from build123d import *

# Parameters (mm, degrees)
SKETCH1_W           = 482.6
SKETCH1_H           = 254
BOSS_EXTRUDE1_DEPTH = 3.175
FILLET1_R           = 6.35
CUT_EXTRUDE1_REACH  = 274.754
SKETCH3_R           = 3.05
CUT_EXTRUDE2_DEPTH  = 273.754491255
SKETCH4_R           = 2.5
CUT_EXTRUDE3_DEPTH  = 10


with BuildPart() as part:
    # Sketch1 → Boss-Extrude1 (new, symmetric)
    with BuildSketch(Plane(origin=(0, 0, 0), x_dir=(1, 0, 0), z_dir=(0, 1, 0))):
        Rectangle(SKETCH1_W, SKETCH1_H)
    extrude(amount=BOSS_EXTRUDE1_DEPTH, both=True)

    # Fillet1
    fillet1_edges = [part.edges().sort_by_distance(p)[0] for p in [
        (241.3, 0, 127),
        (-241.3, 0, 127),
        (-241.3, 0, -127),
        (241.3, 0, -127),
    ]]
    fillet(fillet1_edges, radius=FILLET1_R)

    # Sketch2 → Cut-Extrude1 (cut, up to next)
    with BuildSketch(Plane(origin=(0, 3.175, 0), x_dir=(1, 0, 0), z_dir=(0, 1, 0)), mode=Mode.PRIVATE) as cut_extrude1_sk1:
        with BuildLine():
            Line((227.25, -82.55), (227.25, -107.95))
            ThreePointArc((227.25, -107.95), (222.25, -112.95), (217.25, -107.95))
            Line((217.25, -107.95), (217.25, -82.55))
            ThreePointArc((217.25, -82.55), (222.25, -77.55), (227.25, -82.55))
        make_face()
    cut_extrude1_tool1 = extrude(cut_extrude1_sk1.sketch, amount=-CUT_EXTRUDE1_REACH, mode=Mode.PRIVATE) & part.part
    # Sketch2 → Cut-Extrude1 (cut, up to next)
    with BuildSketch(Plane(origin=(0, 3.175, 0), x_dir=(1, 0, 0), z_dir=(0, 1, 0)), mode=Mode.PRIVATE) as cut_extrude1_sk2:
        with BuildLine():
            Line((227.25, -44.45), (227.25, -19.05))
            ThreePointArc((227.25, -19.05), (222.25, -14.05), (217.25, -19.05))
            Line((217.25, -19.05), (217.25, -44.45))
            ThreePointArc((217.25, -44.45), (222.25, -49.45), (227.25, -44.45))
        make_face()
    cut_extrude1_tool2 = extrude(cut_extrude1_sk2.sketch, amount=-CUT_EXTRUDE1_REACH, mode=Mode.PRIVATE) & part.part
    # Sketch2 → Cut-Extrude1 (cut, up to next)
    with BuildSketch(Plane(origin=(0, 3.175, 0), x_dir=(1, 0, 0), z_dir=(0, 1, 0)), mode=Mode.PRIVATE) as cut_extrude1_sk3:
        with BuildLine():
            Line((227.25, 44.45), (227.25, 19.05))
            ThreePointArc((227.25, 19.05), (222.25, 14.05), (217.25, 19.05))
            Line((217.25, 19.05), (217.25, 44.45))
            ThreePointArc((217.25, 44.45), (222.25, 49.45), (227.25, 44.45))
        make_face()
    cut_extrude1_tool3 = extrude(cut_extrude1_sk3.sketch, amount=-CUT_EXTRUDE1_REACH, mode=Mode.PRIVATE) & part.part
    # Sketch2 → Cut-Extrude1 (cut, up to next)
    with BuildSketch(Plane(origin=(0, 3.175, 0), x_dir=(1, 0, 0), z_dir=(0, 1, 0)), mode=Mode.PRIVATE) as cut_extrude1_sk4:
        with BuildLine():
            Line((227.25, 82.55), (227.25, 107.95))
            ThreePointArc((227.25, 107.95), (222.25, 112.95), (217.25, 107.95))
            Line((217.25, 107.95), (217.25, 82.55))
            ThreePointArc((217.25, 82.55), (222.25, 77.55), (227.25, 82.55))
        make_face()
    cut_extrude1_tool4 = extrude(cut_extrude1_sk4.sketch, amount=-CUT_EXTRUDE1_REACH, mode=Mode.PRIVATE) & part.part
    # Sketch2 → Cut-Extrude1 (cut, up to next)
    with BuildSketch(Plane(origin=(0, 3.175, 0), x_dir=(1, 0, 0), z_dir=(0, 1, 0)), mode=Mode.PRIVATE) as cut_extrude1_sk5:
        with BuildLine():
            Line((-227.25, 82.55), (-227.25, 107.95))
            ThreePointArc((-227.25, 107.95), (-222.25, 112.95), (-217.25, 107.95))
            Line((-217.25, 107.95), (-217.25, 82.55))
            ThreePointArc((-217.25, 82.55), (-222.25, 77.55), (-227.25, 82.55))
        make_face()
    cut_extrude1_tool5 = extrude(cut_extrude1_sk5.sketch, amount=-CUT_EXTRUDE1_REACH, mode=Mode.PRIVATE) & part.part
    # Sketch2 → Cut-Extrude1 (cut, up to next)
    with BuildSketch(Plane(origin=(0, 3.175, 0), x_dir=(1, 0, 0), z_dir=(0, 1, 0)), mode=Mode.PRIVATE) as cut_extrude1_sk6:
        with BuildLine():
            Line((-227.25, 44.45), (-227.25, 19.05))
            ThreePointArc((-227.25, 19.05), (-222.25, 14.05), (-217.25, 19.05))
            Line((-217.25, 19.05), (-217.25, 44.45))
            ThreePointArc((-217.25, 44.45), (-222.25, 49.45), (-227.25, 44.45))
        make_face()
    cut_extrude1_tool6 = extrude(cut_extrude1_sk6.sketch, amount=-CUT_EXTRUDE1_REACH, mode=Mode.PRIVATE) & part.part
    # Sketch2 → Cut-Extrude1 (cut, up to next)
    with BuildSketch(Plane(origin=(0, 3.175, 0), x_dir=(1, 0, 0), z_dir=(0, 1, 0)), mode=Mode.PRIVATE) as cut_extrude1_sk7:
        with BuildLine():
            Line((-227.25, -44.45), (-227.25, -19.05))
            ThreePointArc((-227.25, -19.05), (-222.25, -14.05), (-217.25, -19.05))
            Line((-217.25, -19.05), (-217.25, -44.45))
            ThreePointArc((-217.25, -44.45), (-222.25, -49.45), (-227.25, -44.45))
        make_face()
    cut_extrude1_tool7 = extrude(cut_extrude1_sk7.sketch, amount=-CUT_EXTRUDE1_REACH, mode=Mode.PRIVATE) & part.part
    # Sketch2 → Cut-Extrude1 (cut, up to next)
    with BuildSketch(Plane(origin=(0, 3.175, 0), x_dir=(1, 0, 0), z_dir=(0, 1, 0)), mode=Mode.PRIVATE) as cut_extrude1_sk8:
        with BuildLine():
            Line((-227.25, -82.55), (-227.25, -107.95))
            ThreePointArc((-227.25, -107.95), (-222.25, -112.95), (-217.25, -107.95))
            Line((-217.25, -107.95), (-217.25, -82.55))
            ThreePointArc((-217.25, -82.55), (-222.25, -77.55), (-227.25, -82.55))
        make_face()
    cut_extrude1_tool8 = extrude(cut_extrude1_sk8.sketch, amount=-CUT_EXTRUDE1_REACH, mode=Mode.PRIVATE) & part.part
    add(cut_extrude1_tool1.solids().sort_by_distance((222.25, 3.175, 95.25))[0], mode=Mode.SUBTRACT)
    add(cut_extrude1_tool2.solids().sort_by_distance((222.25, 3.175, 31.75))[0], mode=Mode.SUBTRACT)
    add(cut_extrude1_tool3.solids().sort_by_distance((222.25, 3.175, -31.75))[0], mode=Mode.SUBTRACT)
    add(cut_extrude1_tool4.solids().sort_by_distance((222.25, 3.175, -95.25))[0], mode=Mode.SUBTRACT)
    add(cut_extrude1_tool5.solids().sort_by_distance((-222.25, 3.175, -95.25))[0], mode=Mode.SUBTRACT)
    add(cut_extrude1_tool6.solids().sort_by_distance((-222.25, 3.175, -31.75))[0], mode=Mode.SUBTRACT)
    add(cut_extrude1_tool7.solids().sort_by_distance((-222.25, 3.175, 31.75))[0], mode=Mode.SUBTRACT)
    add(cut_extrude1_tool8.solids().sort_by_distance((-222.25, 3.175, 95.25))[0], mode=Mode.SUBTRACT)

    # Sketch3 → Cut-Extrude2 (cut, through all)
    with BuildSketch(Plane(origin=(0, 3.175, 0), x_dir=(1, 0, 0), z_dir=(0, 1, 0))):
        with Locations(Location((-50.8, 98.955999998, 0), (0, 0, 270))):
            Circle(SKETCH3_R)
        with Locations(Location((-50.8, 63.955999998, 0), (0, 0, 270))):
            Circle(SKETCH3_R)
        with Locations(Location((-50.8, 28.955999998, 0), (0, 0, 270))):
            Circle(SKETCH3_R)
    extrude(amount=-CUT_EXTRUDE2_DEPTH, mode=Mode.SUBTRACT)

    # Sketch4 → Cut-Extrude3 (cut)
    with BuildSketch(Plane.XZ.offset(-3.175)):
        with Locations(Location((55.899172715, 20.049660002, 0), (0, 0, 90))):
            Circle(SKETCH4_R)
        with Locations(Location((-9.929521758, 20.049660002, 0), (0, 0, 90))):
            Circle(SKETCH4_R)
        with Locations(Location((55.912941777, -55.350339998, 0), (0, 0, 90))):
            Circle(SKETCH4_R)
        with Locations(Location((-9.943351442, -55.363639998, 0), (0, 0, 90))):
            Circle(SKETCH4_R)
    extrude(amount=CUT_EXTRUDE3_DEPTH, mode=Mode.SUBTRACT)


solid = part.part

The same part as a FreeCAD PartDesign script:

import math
import FreeCAD as App
import Part
import Sketcher
from FreeCAD import Vector
Q = App.Units.Quantity


def edges_at(feature, points):
    """Names of the edges that pass closest to the given points."""
    edges = feature.Shape.Edges
    near = lambda p: min(range(len(edges)), key=lambda i: edges[i].distToShape(Part.Vertex(*p))[0])
    return sorted({f"Edge{near(p) + 1}" for p in points})

doc = App.newDocument("Part")
params = doc.addObject("Spreadsheet::Sheet", "Params")
for row, (alias, value) in enumerate([
    ("sketch1_width", "19 in"),
    ("sketch1_height", "10 in"),
    ("pad1_length", "0.25 in"),
    ("fillet_radius", "0.25 in"),
    ("sketch2_height", "1 in"),
    ("sketch3_height", "1 in"),
    ("sketch4_height", "1 in"),
    ("sketch5_height", "1 in"),
    ("sketch6_height", "1 in"),
    ("sketch7_height", "1 in"),
    ("sketch8_height", "1 in"),
    ("sketch9_height", "1 in"),
    ("pocket10_length", "10 mm"),
], start=1):
    params.set(f"A{row}", alias)
    params.set(f"B{row}", "=" + value)
    params.setAlias(f"B{row}", alias)

body = doc.addObject("PartDesign::Body", "Body")

sketch1 = body.newObject("Sketcher::SketchObject", "Sketch")
sketch1.AttachmentSupport = (doc.getObject("XZ_Plane"), [""])
sketch1.MapMode = "FlatFace"
sketch1.addGeometry(Part.LineSegment(Vector(-241, -127, 0), Vector(-241, 127, 0)), False)
sketch1.addGeometry(Part.LineSegment(Vector(-241, 127, 0), Vector(241, 127, 0)), False)
sketch1.addGeometry(Part.LineSegment(Vector(241, 127, 0), Vector(241, -127, 0)), False)
sketch1.addGeometry(Part.LineSegment(Vector(241, -127, 0), Vector(-241, -127, 0)), False)
sketch1.addConstraint(Sketcher.Constraint("Coincident", 0, 2, 1, 1))
sketch1.addConstraint(Sketcher.Constraint("Coincident", 1, 2, 2, 1))
sketch1.addConstraint(Sketcher.Constraint("Coincident", 2, 2, 3, 1))
sketch1.addConstraint(Sketcher.Constraint("Coincident", 3, 2, 0, 1))
sketch1.addConstraint(Sketcher.Constraint("Vertical", 0))
sketch1.addConstraint(Sketcher.Constraint("Horizontal", 1))
sketch1.addConstraint(Sketcher.Constraint("Vertical", 2))
sketch1.addConstraint(Sketcher.Constraint("Horizontal", 3))
sketch1.addConstraint(Sketcher.Constraint("Symmetric", 0, 2, 2, 2, -1, 1))
sketch1.addConstraint(Sketcher.Constraint("DistanceX", 1, 1, 1, 2, Q("19 in")))
sketch1.addConstraint(Sketcher.Constraint("DistanceY", 0, 1, 0, 2, Q("10 in")))
sketch1.setExpression("Constraints[9]", "Params.sketch1_width")
sketch1.setExpression("Constraints[10]", "Params.sketch1_height")
pad1 = body.newObject("PartDesign::Pad", "Pad")
pad1.Profile = sketch1
pad1.setExpression("Length", "Params.pad1_length")
pad1.Midplane = True
doc.recompute()

fillet = body.newObject("PartDesign::Fillet", "Fillet")
fillet.Base = (pad1, edges_at(pad1, [
    (241.3, 0, 127),
    (-241.3, 0, 127),
    (-241.3, 0, -127),
    (241.3, 0, -127),
]))
fillet.setExpression("Radius", "Params.fillet_radius")

sketch2 = body.newObject("Sketcher::SketchObject", "Sketch001")
sketch2.AttachmentSupport = (doc.getObject("XZ_Plane"), [""])
sketch2.MapMode = "FlatFace"
sketch2.AttachmentOffset = App.Placement(Vector(0, 0, -0.125 * 25.4), App.Rotation())
sketch2.addGeometry(Part.LineSegment(Vector(227, 108, 0), Vector(227, 83, 0)), False)
sketch2.addGeometry(Part.ArcOfCircle(Part.Circle(Vector(222, 83, 0), Vector(0, 0, 1), 5), math.radians(180), math.radians(360)), False)
sketch2.addGeometry(Part.LineSegment(Vector(217, 83, 0), Vector(217, 108, 0)), False)
sketch2.addGeometry(Part.ArcOfCircle(Part.Circle(Vector(222, 108, 0), Vector(0, 0, 1), 5), math.radians(0), math.radians(180)), False)
sketch2.addConstraint(Sketcher.Constraint("Tangent", 0, 2, 1, 2))
sketch2.addConstraint(Sketcher.Constraint("Tangent", 1, 1, 2, 1))
sketch2.addConstraint(Sketcher.Constraint("Tangent", 2, 2, 3, 2))
sketch2.addConstraint(Sketcher.Constraint("Tangent", 3, 1, 0, 1))
sketch2.addConstraint(Sketcher.Constraint("Vertical", 0))
sketch2.addConstraint(Sketcher.Constraint("Vertical", 2))
sketch2.addConstraint(Sketcher.Constraint("DistanceY", 0, 2, 0, 1, Q("1 in")))
sketch2.addConstraint(Sketcher.Constraint("DistanceX", -1, 1, 1, 3, Q("8.75 in")))
sketch2.addConstraint(Sketcher.Constraint("DistanceY", -1, 1, 1, 3, Q("3.25 in")))
sketch2.addConstraint(Sketcher.Constraint("Radius", 1, 5.0))
sketch2.setExpression("Constraints[6]", "Params.sketch2_height")
pocket1 = body.newObject("PartDesign::Pocket", "Pocket")
pocket1.Profile = sketch2
pocket1.Type = "UpToFirst"
pocket1.Reversed = True

sketch3 = body.newObject("Sketcher::SketchObject", "Sketch002")
sketch3.AttachmentSupport = (doc.getObject("XZ_Plane"), [""])
sketch3.MapMode = "FlatFace"
sketch3.AttachmentOffset = App.Placement(Vector(0, 0, -0.125 * 25.4), App.Rotation())
sketch3.addGeometry(Part.LineSegment(Vector(227, 44, 0), Vector(227, 19, 0)), False)
sketch3.addGeometry(Part.ArcOfCircle(Part.Circle(Vector(222, 19, 0), Vector(0, 0, 1), 5), math.radians(180), math.radians(360)), False)
sketch3.addGeometry(Part.LineSegment(Vector(217, 19, 0), Vector(217, 44, 0)), False)
sketch3.addGeometry(Part.ArcOfCircle(Part.Circle(Vector(222, 44, 0), Vector(0, 0, 1), 5), math.radians(0), math.radians(180)), False)
sketch3.addConstraint(Sketcher.Constraint("Tangent", 0, 2, 1, 2))
sketch3.addConstraint(Sketcher.Constraint("Tangent", 1, 1, 2, 1))
sketch3.addConstraint(Sketcher.Constraint("Tangent", 2, 2, 3, 2))
sketch3.addConstraint(Sketcher.Constraint("Tangent", 3, 1, 0, 1))
sketch3.addConstraint(Sketcher.Constraint("Vertical", 0))
sketch3.addConstraint(Sketcher.Constraint("Vertical", 2))
sketch3.addConstraint(Sketcher.Constraint("DistanceY", 0, 2, 0, 1, Q("1 in")))
sketch3.addConstraint(Sketcher.Constraint("DistanceX", -1, 1, 1, 3, Q("8.75 in")))
sketch3.addConstraint(Sketcher.Constraint("DistanceY", -1, 1, 1, 3, Q("0.75 in")))
sketch3.addConstraint(Sketcher.Constraint("Radius", 1, 5.0))
sketch3.setExpression("Constraints[6]", "Params.sketch3_height")
pocket2 = body.newObject("PartDesign::Pocket", "Pocket001")
pocket2.Profile = sketch3
pocket2.Type = "UpToFirst"
pocket2.Reversed = True

sketch4 = body.newObject("Sketcher::SketchObject", "Sketch003")
sketch4.AttachmentSupport = (doc.getObject("XZ_Plane"), [""])
sketch4.MapMode = "FlatFace"
sketch4.AttachmentOffset = App.Placement(Vector(0, 0, -0.125 * 25.4), App.Rotation())
sketch4.addGeometry(Part.LineSegment(Vector(227, -19, 0), Vector(227, -44, 0)), False)
sketch4.addGeometry(Part.ArcOfCircle(Part.Circle(Vector(222, -44, 0), Vector(0, 0, 1), 5), math.radians(180), math.radians(360)), False)
sketch4.addGeometry(Part.LineSegment(Vector(217, -44, 0), Vector(217, -19, 0)), False)
sketch4.addGeometry(Part.ArcOfCircle(Part.Circle(Vector(222, -19, 0), Vector(0, 0, 1), 5), math.radians(0), math.radians(180)), False)
sketch4.addConstraint(Sketcher.Constraint("Tangent", 0, 2, 1, 2))
sketch4.addConstraint(Sketcher.Constraint("Tangent", 1, 1, 2, 1))
sketch4.addConstraint(Sketcher.Constraint("Tangent", 2, 2, 3, 2))
sketch4.addConstraint(Sketcher.Constraint("Tangent", 3, 1, 0, 1))
sketch4.addConstraint(Sketcher.Constraint("Vertical", 0))
sketch4.addConstraint(Sketcher.Constraint("Vertical", 2))
sketch4.addConstraint(Sketcher.Constraint("DistanceY", 0, 2, 0, 1, Q("1 in")))
sketch4.addConstraint(Sketcher.Constraint("DistanceX", -1, 1, 1, 3, Q("8.75 in")))
sketch4.addConstraint(Sketcher.Constraint("DistanceY", 1, 3, -1, 1, Q("1.75 in")))
sketch4.addConstraint(Sketcher.Constraint("Radius", 1, 5.0))
sketch4.setExpression("Constraints[6]", "Params.sketch4_height")
pocket3 = body.newObject("PartDesign::Pocket", "Pocket002")
pocket3.Profile = sketch4
pocket3.Type = "UpToFirst"
pocket3.Reversed = True

sketch5 = body.newObject("Sketcher::SketchObject", "Sketch004")
sketch5.AttachmentSupport = (doc.getObject("XZ_Plane"), [""])
sketch5.MapMode = "FlatFace"
sketch5.AttachmentOffset = App.Placement(Vector(0, 0, -0.125 * 25.4), App.Rotation())
sketch5.addGeometry(Part.LineSegment(Vector(227, -83, 0), Vector(227, -108, 0)), False)
sketch5.addGeometry(Part.ArcOfCircle(Part.Circle(Vector(222, -108, 0), Vector(0, 0, 1), 5), math.radians(180), math.radians(360)), False)
sketch5.addGeometry(Part.LineSegment(Vector(217, -108, 0), Vector(217, -83, 0)), False)
sketch5.addGeometry(Part.ArcOfCircle(Part.Circle(Vector(222, -83, 0), Vector(0, 0, 1), 5), math.radians(0), math.radians(180)), False)
sketch5.addConstraint(Sketcher.Constraint("Tangent", 0, 2, 1, 2))
sketch5.addConstraint(Sketcher.Constraint("Tangent", 1, 1, 2, 1))
sketch5.addConstraint(Sketcher.Constraint("Tangent", 2, 2, 3, 2))
sketch5.addConstraint(Sketcher.Constraint("Tangent", 3, 1, 0, 1))
sketch5.addConstraint(Sketcher.Constraint("Vertical", 0))
sketch5.addConstraint(Sketcher.Constraint("Vertical", 2))
sketch5.addConstraint(Sketcher.Constraint("DistanceY", 0, 2, 0, 1, Q("1 in")))
sketch5.addConstraint(Sketcher.Constraint("DistanceX", -1, 1, 1, 3, Q("8.75 in")))
sketch5.addConstraint(Sketcher.Constraint("DistanceY", 1, 3, -1, 1, Q("4.25 in")))
sketch5.addConstraint(Sketcher.Constraint("Radius", 1, 5.0))
sketch5.setExpression("Constraints[6]", "Params.sketch5_height")
pocket4 = body.newObject("PartDesign::Pocket", "Pocket003")
pocket4.Profile = sketch5
pocket4.Type = "UpToFirst"
pocket4.Reversed = True

sketch6 = body.newObject("Sketcher::SketchObject", "Sketch005")
sketch6.AttachmentSupport = (doc.getObject("XZ_Plane"), [""])
sketch6.MapMode = "FlatFace"
sketch6.AttachmentOffset = App.Placement(Vector(0, 0, -0.125 * 25.4), App.Rotation())
sketch6.addGeometry(Part.LineSegment(Vector(-227, -108, 0), Vector(-227, -83, 0)), False)
sketch6.addGeometry(Part.ArcOfCircle(Part.Circle(Vector(-222, -83, 0), Vector(0, 0, 1), 5), math.radians(0), math.radians(180)), False)
sketch6.addGeometry(Part.LineSegment(Vector(-217, -83, 0), Vector(-217, -108, 0)), False)
sketch6.addGeometry(Part.ArcOfCircle(Part.Circle(Vector(-222, -108, 0), Vector(0, 0, 1), 5), math.radians(180), math.radians(360)), False)
sketch6.addConstraint(Sketcher.Constraint("Tangent", 0, 2, 1, 2))
sketch6.addConstraint(Sketcher.Constraint("Tangent", 1, 1, 2, 1))
sketch6.addConstraint(Sketcher.Constraint("Tangent", 2, 2, 3, 2))
sketch6.addConstraint(Sketcher.Constraint("Tangent", 3, 1, 0, 1))
sketch6.addConstraint(Sketcher.Constraint("Vertical", 0))
sketch6.addConstraint(Sketcher.Constraint("Vertical", 2))
sketch6.addConstraint(Sketcher.Constraint("DistanceY", 0, 1, 0, 2, Q("1 in")))
sketch6.addConstraint(Sketcher.Constraint("DistanceX", 1, 3, -1, 1, Q("8.75 in")))
sketch6.addConstraint(Sketcher.Constraint("DistanceY", 1, 3, -1, 1, Q("3.25 in")))
sketch6.addConstraint(Sketcher.Constraint("Radius", 1, 5.0))
sketch6.setExpression("Constraints[6]", "Params.sketch6_height")
pocket5 = body.newObject("PartDesign::Pocket", "Pocket004")
pocket5.Profile = sketch6
pocket5.Type = "UpToFirst"
pocket5.Reversed = True

sketch7 = body.newObject("Sketcher::SketchObject", "Sketch006")
sketch7.AttachmentSupport = (doc.getObject("XZ_Plane"), [""])
sketch7.MapMode = "FlatFace"
sketch7.AttachmentOffset = App.Placement(Vector(0, 0, -0.125 * 25.4), App.Rotation())
sketch7.addGeometry(Part.LineSegment(Vector(-227, -44, 0), Vector(-227, -19, 0)), False)
sketch7.addGeometry(Part.ArcOfCircle(Part.Circle(Vector(-222, -19, 0), Vector(0, 0, 1), 5), math.radians(0), math.radians(180)), False)
sketch7.addGeometry(Part.LineSegment(Vector(-217, -19, 0), Vector(-217, -44, 0)), False)
sketch7.addGeometry(Part.ArcOfCircle(Part.Circle(Vector(-222, -44, 0), Vector(0, 0, 1), 5), math.radians(180), math.radians(360)), False)
sketch7.addConstraint(Sketcher.Constraint("Tangent", 0, 2, 1, 2))
sketch7.addConstraint(Sketcher.Constraint("Tangent", 1, 1, 2, 1))
sketch7.addConstraint(Sketcher.Constraint("Tangent", 2, 2, 3, 2))
sketch7.addConstraint(Sketcher.Constraint("Tangent", 3, 1, 0, 1))
sketch7.addConstraint(Sketcher.Constraint("Vertical", 0))
sketch7.addConstraint(Sketcher.Constraint("Vertical", 2))
sketch7.addConstraint(Sketcher.Constraint("DistanceY", 0, 1, 0, 2, Q("1 in")))
sketch7.addConstraint(Sketcher.Constraint("DistanceX", 1, 3, -1, 1, Q("8.75 in")))
sketch7.addConstraint(Sketcher.Constraint("DistanceY", 1, 3, -1, 1, Q("0.75 in")))
sketch7.addConstraint(Sketcher.Constraint("Radius", 1, 5.0))
sketch7.setExpression("Constraints[6]", "Params.sketch7_height")
pocket6 = body.newObject("PartDesign::Pocket", "Pocket005")
pocket6.Profile = sketch7
pocket6.Type = "UpToFirst"
pocket6.Reversed = True

sketch8 = body.newObject("Sketcher::SketchObject", "Sketch007")
sketch8.AttachmentSupport = (doc.getObject("XZ_Plane"), [""])
sketch8.MapMode = "FlatFace"
sketch8.AttachmentOffset = App.Placement(Vector(0, 0, -0.125 * 25.4), App.Rotation())
sketch8.addGeometry(Part.LineSegment(Vector(-227, 19, 0), Vector(-227, 44, 0)), False)
sketch8.addGeometry(Part.ArcOfCircle(Part.Circle(Vector(-222, 44, 0), Vector(0, 0, 1), 5), math.radians(0), math.radians(180)), False)
sketch8.addGeometry(Part.LineSegment(Vector(-217, 44, 0), Vector(-217, 19, 0)), False)
sketch8.addGeometry(Part.ArcOfCircle(Part.Circle(Vector(-222, 19, 0), Vector(0, 0, 1), 5), math.radians(180), math.radians(360)), False)
sketch8.addConstraint(Sketcher.Constraint("Tangent", 0, 2, 1, 2))
sketch8.addConstraint(Sketcher.Constraint("Tangent", 1, 1, 2, 1))
sketch8.addConstraint(Sketcher.Constraint("Tangent", 2, 2, 3, 2))
sketch8.addConstraint(Sketcher.Constraint("Tangent", 3, 1, 0, 1))
sketch8.addConstraint(Sketcher.Constraint("Vertical", 0))
sketch8.addConstraint(Sketcher.Constraint("Vertical", 2))
sketch8.addConstraint(Sketcher.Constraint("DistanceY", 0, 1, 0, 2, Q("1 in")))
sketch8.addConstraint(Sketcher.Constraint("DistanceX", 1, 3, -1, 1, Q("8.75 in")))
sketch8.addConstraint(Sketcher.Constraint("DistanceY", -1, 1, 1, 3, Q("1.75 in")))
sketch8.addConstraint(Sketcher.Constraint("Radius", 1, 5.0))
sketch8.setExpression("Constraints[6]", "Params.sketch8_height")
pocket7 = body.newObject("PartDesign::Pocket", "Pocket006")
pocket7.Profile = sketch8
pocket7.Type = "UpToFirst"
pocket7.Reversed = True

sketch9 = body.newObject("Sketcher::SketchObject", "Sketch008")
sketch9.AttachmentSupport = (doc.getObject("XZ_Plane"), [""])
sketch9.MapMode = "FlatFace"
sketch9.AttachmentOffset = App.Placement(Vector(0, 0, -0.125 * 25.4), App.Rotation())
sketch9.addGeometry(Part.LineSegment(Vector(-227, 83, 0), Vector(-227, 108, 0)), False)
sketch9.addGeometry(Part.ArcOfCircle(Part.Circle(Vector(-222, 108, 0), Vector(0, 0, 1), 5), math.radians(0), math.radians(180)), False)
sketch9.addGeometry(Part.LineSegment(Vector(-217, 108, 0), Vector(-217, 83, 0)), False)
sketch9.addGeometry(Part.ArcOfCircle(Part.Circle(Vector(-222, 83, 0), Vector(0, 0, 1), 5), math.radians(180), math.radians(360)), False)
sketch9.addConstraint(Sketcher.Constraint("Tangent", 0, 2, 1, 2))
sketch9.addConstraint(Sketcher.Constraint("Tangent", 1, 1, 2, 1))
sketch9.addConstraint(Sketcher.Constraint("Tangent", 2, 2, 3, 2))
sketch9.addConstraint(Sketcher.Constraint("Tangent", 3, 1, 0, 1))
sketch9.addConstraint(Sketcher.Constraint("Vertical", 0))
sketch9.addConstraint(Sketcher.Constraint("Vertical", 2))
sketch9.addConstraint(Sketcher.Constraint("DistanceY", 0, 1, 0, 2, Q("1 in")))
sketch9.addConstraint(Sketcher.Constraint("DistanceX", 1, 3, -1, 1, Q("8.75 in")))
sketch9.addConstraint(Sketcher.Constraint("DistanceY", -1, 1, 1, 3, Q("4.25 in")))
sketch9.addConstraint(Sketcher.Constraint("Radius", 1, 5.0))
sketch9.setExpression("Constraints[6]", "Params.sketch9_height")
pocket8 = body.newObject("PartDesign::Pocket", "Pocket007")
pocket8.Profile = sketch9
pocket8.Type = "UpToFirst"
pocket8.Reversed = True

sketch10 = body.newObject("Sketcher::SketchObject", "Sketch009")
sketch10.AttachmentSupport = (doc.getObject("XZ_Plane"), [""])
sketch10.MapMode = "FlatFace"
sketch10.AttachmentOffset = App.Placement(Vector(0, 0, -0.125 * 25.4), App.Rotation())
sketch10.addGeometry(Part.Circle(Vector(-50.8, -99, 0), Vector(0, 0, 1), 3), False)
sketch10.addGeometry(Part.Circle(Vector(-50.8, -64, 0), Vector(0, 0, 1), 3), False)
sketch10.addGeometry(Part.Circle(Vector(-50.8, -29, 0), Vector(0, 0, 1), 3), False)
sketch10.addConstraint(Sketcher.Constraint("Equal", 0, 1))
sketch10.addConstraint(Sketcher.Constraint("Equal", 1, 2))
sketch10.addConstraint(Sketcher.Constraint("Vertical", 0, 3, 1, 3))
sketch10.addConstraint(Sketcher.Constraint("Vertical", 1, 3, 2, 3))
sketch10.addConstraint(Sketcher.Constraint("DistanceX", 0, 3, -1, 1, Q("2 in")))
sketch10.addConstraint(Sketcher.Constraint("Diameter", 0, 6.1))
sketch10.addConstraint(Sketcher.Constraint("DistanceY", 2, 3, -1, 1, Q("1.14 in")))
sketch10.addConstraint(Sketcher.Constraint("DistanceY", 0, 3, -1, 1, 98.956))
sketch10.addConstraint(Sketcher.Constraint("DistanceY", 1, 3, -1, 1, 63.956))
pocket9 = body.newObject("PartDesign::Pocket", "Pocket008")
pocket9.Profile = sketch10
pocket9.Type = "ThroughAll"
pocket9.Reversed = True

sketch11 = body.newObject("Sketcher::SketchObject", "Sketch010")
sketch11.AttachmentSupport = (doc.getObject("XZ_Plane"), [""])
sketch11.MapMode = "FlatFace"
sketch11.AttachmentOffset = App.Placement(Vector(0, 0, -0.125 * 25.4), App.Rotation())
sketch11.addGeometry(Part.Circle(Vector(55.9, 20, 0), Vector(0, 0, 1), 2.5), False)
sketch11.addGeometry(Part.Circle(Vector(-9.9, 20, 0), Vector(0, 0, 1), 2.5), False)
sketch11.addGeometry(Part.Circle(Vector(55.9, -55.4, 0), Vector(0, 0, 1), 2.5), False)
sketch11.addGeometry(Part.Circle(Vector(-9.9, -55.4, 0), Vector(0, 0, 1), 2.5), False)
sketch11.addConstraint(Sketcher.Constraint("Equal", 0, 1))
sketch11.addConstraint(Sketcher.Constraint("Equal", 1, 2))
sketch11.addConstraint(Sketcher.Constraint("Equal", 2, 3))
sketch11.addConstraint(Sketcher.Constraint("Horizontal", 0, 3, 1, 3))
sketch11.addConstraint(Sketcher.Constraint("Diameter", 0, 5.0))
sketch11.addConstraint(Sketcher.Constraint("DistanceY", 2, 3, 0, 3, 75.4))
sketch11.addConstraint(Sketcher.Constraint("DistanceY", 3, 3, 2, 3, 0.0133))
sketch11.addConstraint(Sketcher.Constraint("DistanceY", -1, 1, 0, 3, 20.04966))
sketch11.addConstraint(Sketcher.Constraint("DistanceX", 1, 3, -1, 1, 9.929522))
sketch11.addConstraint(Sketcher.Constraint("DistanceX", -1, 1, 2, 3, 55.912942))
sketch11.addConstraint(Sketcher.Constraint("DistanceX", 3, 3, -1, 1, 9.943351))
sketch11.addConstraint(Sketcher.Constraint("DistanceX", 0, 3, 2, 3, 0.013769))
pocket10 = body.newObject("PartDesign::Pocket", "Pocket009")
pocket10.Profile = sketch11
pocket10.setExpression("Length", "Params.pocket10_length")
pocket10.Reversed = True

doc.recompute()
